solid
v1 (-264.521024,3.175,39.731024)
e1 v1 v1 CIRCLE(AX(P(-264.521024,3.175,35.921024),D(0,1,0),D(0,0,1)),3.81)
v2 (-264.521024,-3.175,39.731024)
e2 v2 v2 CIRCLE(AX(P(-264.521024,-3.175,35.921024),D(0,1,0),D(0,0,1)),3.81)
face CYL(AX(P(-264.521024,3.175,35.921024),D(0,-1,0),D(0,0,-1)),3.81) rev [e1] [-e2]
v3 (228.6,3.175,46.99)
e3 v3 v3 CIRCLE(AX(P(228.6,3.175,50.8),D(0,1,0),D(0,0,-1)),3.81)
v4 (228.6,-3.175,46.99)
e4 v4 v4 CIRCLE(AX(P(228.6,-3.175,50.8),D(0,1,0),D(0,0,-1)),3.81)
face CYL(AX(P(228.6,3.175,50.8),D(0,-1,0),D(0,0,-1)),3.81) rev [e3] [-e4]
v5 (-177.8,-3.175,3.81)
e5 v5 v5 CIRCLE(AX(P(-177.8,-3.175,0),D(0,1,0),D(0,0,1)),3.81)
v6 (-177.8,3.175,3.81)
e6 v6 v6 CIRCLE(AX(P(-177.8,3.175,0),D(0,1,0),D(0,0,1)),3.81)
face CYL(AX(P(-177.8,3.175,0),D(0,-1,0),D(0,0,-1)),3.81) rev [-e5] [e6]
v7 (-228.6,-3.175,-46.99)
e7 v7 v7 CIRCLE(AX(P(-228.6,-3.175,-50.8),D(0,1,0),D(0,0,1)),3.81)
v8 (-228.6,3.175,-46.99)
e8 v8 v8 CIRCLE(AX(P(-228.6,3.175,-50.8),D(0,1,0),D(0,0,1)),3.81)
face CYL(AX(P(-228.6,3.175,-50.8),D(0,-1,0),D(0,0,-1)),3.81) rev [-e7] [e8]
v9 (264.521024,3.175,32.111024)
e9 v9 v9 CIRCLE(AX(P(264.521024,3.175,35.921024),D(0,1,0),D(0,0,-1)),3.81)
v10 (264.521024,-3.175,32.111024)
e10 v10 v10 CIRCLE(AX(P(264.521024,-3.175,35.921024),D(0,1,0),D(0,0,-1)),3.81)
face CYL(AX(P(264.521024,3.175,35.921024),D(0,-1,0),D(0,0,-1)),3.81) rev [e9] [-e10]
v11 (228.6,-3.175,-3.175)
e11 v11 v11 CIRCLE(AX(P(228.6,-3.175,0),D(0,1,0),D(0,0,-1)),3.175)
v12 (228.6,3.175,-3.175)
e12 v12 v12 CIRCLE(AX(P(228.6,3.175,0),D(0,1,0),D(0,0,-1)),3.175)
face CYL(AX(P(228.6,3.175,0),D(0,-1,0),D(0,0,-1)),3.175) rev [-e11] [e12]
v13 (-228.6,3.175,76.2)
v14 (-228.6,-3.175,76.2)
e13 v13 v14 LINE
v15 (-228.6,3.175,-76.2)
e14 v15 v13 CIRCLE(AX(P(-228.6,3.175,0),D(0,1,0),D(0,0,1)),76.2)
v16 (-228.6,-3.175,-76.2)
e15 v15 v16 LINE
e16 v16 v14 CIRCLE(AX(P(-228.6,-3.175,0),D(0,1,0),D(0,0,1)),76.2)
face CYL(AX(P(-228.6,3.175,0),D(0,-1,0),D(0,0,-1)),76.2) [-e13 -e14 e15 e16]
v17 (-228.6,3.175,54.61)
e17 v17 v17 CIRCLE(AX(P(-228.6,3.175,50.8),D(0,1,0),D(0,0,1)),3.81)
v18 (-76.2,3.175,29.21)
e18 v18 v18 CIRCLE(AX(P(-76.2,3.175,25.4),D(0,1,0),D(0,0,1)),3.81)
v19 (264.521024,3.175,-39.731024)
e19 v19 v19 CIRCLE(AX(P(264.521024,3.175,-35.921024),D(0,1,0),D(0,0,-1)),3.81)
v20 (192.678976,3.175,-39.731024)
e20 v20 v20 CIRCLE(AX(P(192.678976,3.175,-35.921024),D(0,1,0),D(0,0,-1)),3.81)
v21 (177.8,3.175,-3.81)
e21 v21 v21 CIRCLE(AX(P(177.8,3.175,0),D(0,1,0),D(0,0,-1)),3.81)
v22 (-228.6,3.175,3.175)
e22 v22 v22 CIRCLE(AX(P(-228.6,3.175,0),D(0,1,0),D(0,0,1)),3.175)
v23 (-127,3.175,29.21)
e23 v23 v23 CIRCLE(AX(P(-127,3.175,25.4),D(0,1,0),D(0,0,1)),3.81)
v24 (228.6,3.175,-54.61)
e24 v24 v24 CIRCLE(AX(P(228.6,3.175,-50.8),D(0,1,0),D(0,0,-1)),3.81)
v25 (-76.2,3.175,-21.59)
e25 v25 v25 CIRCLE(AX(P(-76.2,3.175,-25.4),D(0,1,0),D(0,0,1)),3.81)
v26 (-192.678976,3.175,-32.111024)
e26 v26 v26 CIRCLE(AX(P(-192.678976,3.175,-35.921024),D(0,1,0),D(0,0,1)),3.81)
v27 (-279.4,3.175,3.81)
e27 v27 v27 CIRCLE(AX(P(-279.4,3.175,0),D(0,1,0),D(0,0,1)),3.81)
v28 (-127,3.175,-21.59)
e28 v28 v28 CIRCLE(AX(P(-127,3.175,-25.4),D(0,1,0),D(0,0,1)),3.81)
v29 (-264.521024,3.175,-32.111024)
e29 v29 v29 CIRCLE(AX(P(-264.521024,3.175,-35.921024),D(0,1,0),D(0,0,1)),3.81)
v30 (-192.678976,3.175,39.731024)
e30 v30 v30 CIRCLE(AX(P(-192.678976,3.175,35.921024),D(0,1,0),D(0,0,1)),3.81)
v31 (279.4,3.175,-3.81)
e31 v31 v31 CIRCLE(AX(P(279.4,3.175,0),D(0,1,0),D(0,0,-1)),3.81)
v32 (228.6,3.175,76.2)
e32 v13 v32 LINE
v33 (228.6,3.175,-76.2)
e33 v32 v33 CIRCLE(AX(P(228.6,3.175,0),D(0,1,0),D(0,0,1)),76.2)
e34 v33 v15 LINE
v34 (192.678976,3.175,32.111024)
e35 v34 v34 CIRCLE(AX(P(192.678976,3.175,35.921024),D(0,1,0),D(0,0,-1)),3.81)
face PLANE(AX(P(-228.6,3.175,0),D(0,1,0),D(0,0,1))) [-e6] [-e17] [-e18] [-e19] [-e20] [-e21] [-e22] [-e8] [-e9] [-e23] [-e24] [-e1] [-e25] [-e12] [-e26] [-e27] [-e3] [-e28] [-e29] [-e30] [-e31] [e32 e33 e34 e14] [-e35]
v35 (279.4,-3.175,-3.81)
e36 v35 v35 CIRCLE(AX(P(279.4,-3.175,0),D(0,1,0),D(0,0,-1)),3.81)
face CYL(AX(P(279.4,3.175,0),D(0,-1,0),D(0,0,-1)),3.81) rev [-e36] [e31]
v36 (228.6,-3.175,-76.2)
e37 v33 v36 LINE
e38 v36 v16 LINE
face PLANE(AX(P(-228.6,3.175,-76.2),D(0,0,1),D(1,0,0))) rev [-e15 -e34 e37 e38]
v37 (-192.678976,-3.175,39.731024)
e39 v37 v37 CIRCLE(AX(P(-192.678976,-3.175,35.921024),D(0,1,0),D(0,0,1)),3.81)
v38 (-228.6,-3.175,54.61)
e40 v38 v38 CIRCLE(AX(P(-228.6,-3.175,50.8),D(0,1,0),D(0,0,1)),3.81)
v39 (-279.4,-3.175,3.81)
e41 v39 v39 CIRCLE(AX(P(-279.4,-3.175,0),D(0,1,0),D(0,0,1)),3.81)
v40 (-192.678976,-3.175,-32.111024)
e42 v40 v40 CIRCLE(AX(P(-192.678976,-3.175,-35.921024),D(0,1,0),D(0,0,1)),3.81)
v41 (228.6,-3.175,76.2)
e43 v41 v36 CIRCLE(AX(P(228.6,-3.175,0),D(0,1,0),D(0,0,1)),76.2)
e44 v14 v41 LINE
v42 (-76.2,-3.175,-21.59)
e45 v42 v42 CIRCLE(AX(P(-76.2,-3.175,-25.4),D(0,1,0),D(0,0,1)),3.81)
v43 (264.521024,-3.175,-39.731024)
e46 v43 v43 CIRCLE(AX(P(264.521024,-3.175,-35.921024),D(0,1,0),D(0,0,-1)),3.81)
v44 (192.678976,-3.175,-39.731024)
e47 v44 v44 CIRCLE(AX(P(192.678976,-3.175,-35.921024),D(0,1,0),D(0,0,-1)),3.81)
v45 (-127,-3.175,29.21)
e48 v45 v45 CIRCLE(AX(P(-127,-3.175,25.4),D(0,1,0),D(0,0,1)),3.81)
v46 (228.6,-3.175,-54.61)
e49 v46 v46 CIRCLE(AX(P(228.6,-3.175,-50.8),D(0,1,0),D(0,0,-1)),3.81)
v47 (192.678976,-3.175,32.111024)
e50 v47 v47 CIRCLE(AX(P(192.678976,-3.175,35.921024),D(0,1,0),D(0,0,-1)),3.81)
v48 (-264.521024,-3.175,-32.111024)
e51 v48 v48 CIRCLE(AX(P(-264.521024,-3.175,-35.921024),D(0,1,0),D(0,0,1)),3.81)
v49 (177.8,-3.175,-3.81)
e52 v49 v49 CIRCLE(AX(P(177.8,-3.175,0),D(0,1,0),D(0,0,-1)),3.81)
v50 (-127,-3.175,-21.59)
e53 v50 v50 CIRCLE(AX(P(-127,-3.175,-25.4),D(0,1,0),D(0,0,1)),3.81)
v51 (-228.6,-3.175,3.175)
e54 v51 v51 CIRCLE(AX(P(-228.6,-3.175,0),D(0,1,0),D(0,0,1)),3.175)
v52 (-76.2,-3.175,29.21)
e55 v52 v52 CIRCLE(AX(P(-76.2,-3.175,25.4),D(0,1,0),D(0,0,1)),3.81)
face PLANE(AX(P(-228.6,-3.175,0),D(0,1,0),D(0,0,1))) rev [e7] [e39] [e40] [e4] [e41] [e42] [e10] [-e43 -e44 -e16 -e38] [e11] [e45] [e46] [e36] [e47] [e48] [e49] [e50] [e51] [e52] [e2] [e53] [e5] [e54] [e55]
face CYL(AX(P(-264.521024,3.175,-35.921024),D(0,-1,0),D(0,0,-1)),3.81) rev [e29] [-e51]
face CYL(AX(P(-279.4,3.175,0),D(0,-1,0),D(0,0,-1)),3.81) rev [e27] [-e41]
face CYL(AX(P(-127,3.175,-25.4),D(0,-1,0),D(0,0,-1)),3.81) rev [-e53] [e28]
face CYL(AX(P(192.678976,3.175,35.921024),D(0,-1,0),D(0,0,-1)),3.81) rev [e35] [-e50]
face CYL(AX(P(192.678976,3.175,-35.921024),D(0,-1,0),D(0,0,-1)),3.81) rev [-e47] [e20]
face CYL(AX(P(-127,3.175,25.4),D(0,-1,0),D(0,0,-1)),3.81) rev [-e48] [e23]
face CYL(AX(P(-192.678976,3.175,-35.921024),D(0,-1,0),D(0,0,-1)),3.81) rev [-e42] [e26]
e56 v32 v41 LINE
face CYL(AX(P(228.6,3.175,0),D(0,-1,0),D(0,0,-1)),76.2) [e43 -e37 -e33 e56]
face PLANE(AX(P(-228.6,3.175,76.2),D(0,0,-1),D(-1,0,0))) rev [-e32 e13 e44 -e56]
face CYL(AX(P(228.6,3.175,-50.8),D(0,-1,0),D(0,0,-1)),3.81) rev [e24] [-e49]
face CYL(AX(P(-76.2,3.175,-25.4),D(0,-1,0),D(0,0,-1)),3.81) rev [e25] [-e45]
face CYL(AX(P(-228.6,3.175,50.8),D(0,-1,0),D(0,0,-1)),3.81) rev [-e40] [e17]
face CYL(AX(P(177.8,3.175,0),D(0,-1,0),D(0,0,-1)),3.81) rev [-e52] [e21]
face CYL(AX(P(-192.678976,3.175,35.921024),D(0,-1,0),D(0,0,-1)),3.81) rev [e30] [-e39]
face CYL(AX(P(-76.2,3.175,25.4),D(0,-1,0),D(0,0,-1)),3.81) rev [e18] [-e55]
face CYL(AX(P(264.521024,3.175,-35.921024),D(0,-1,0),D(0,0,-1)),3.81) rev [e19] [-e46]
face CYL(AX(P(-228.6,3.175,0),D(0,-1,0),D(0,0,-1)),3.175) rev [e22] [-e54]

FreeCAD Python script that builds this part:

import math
import FreeCAD as App
import Part
import Sketcher
from FreeCAD import Vector
Q = App.Units.Quantity

doc = App.newDocument("Part")
params = doc.addObject("Spreadsheet::Sheet", "Params")
for row, (alias, value) in enumerate([
    ("sketch1_radius", "3 in"),
    ("sketch1_diameter", "0.3 in"),
    ("sketch1_diameter2", "0.25 in"),
    ("sketch1_width", "18 in"),
    ("pad1_length", "0.25 in"),
], start=1):
    params.set(f"A{row}", alias)
    params.set(f"B{row}", "=" + value)
    params.setAlias(f"B{row}", alias)

body = doc.addObject("PartDesign::Body", "Body")

# Sketch on XZ plane
sketch1 = body.newObject("Sketcher::SketchObject", "Sketch")
sketch1.AttachmentSupport = (doc.getObject("XZ_Plane"), [""])
sketch1.MapMode = "FlatFace"
sketch1.addGeometry([
    Part.LineSegment(Vector(228.6, -76.2, 0), Vector(-228.6, -76.2, 0)),  # 0
    Part.ArcOfCircle(Part.Circle(Vector(-228.6, 0, 0), Vector(0, 0, 1), 76.2), math.radians(90), math.radians(270)),  # 1
    Part.LineSegment(Vector(-228.6, 76.2, 0), Vector(228.6, 76.2, 0)),  # 2
    Part.ArcOfCircle(Part.Circle(Vector(228.6, 0, 0), Vector(0, 0, 1), 76.2), math.radians(-90), math.radians(90)),  # 3
    Part.Circle(Vector(228.6, 50.8, 0), Vector(0, 0, 1), 3.8),  # 4
    Part.Circle(Vector(264.5, 35.9, 0), Vector(0, 0, 1), 3.8),  # 5
    Part.Circle(Vector(192.7, 35.9, 0), Vector(0, 0, 1), 3.8),  # 6
    Part.Circle(Vector(-228.6, 50.8, 0), Vector(0, 0, 1), 3.8),  # 7
    Part.Circle(Vector(-192.7, 35.9, 0), Vector(0, 0, 1), 3.8),  # 8
    Part.Circle(Vector(-264.5, 35.9, 0), Vector(0, 0, 1), 3.8),  # 9
    Part.Circle(Vector(-76.2, 25.4, 0), Vector(0, 0, 1), 3.8),  # 10
    Part.Circle(Vector(-127, 25.4, 0), Vector(0, 0, 1), 3.8),  # 11
    Part.Circle(Vector(279.4, 0, 0), Vector(0, 0, 1), 3.8),  # 12
    Part.Circle(Vector(228.6, 0, 0), Vector(0, 0, 1), 3.2),  # 13
    Part.Circle(Vector(177.8, 0, 0), Vector(0, 0, 1), 3.8),  # 14
    Part.Circle(Vector(264.5, -35.9, 0), Vector(0, 0, 1), 3.8),  # 15
    Part.Circle(Vector(192.7, -35.9, 0), Vector(0, 0, 1), 3.8),  # 16
    Part.Circle(Vector(228.6, -50.8, 0), Vector(0, 0, 1), 3.8),  # 17
    Part.Circle(Vector(-76.2, -25.4, 0), Vector(0, 0, 1), 3.8),  # 18
    Part.Circle(Vector(-127, -25.4, 0), Vector(0, 0, 1), 3.8),  # 19
    Part.Circle(Vector(-177.8, 0, 0), Vector(0, 0, 1), 3.8),  # 20
    Part.Circle(Vector(-228.6, 0, 0), Vector(0, 0, 1), 3.2),  # 21
    Part.Circle(Vector(-279.4, 0, 0), Vector(0, 0, 1), 3.8),  # 22
    Part.Circle(Vector(-192.7, -35.9, 0), Vector(0, 0, 1), 3.8),  # 23
    Part.Circle(Vector(-264.5, -35.9, 0), Vector(0, 0, 1), 3.8),  # 24
    Part.Circle(Vector(-228.6, -50.8, 0), Vector(0, 0, 1), 3.8),  # 25
], False)
sketch1.addConstraint([
    Sketcher.Constraint("Tangent", 0, 2, 1, 2),
    Sketcher.Constraint("Tangent", 1, 1, 2, 1),
    Sketcher.Constraint("Tangent", 2, 2, 3, 2),
    Sketcher.Constraint("Tangent", 3, 1, 0, 1),
    Sketcher.Constraint("Horizontal", 0),
    Sketcher.Constraint("Horizontal", 2),
    Sketcher.Constraint("Coincident", 13, 3, 3, 3),
    Sketcher.Constraint("Coincident", 21, 3, 1, 3),
    Sketcher.Constraint("Equal", 4, 5),
    Sketcher.Constraint("Equal", 5, 6),
    Sketcher.Constraint("Equal", 6, 7),
    Sketcher.Constraint("Equal", 7, 8),
    Sketcher.Constraint("Equal", 8, 9),
    Sketcher.Constraint("Equal", 9, 10),
    Sketcher.Constraint("Equal", 10, 11),
    Sketcher.Constraint("Equal", 11, 12),
    Sketcher.Constraint("Equal", 12, 14),
    Sketcher.Constraint("Equal", 14, 15),
    Sketcher.Constraint("Equal", 15, 16),
    Sketcher.Constraint("Equal", 16, 17),
    Sketcher.Constraint("Equal", 17, 18),
    Sketcher.Constraint("Equal", 18, 19),
    Sketcher.Constraint("Equal", 19, 20),
    Sketcher.Constraint("Equal", 13, 21),
    Sketcher.Constraint("Equal", 20, 22),
    Sketcher.Constraint("Equal", 22, 23),
    Sketcher.Constraint("Equal", 23, 24),
    Sketcher.Constraint("Equal", 24, 25),
    Sketcher.Constraint("Symmetric", 1, 3, 3, 3, -1, 1),
    Sketcher.Constraint("Symmetric", 9, 3, 15, 3, -1, 1),
    Sketcher.Constraint("Symmetric", 8, 3, 16, 3, -1, 1),
    Sketcher.Constraint("Symmetric", 7, 3, 17, 3, -1, 1),
    Sketcher.Constraint("Symmetric", 14, 3, 20, 3, -1, 1),
    Sketcher.Constraint("Symmetric", 12, 3, 22, 3, -1, 1),
    Sketcher.Constraint("Symmetric", 6, 3, 23, 3, -1, 1),
    Sketcher.Constraint("Symmetric", 5, 3, 24, 3, -1, 1),
    Sketcher.Constraint("Symmetric", 4, 3, 25, 3, -1, 1),
    Sketcher.Constraint("Symmetric", 4, 3, 7, 3, -2),
    Sketcher.Constraint("Symmetric", 6, 3, 8, 3, -2),
    Sketcher.Constraint("Symmetric", 5, 3, 9, 3, -2),
    Sketcher.Constraint("Symmetric", 10, 3, 18, 3, -1),
    Sketcher.Constraint("Symmetric", 11, 3, 19, 3, -1),
    Sketcher.Constraint("PointOnObject", 12, 3, -1),
    Sketcher.Constraint("PointOnObject", 14, 3, -1),
    Sketcher.Constraint("Horizontal", 5, 3, 6, 3),
    Sketcher.Constraint("Horizontal", 10, 3, 11, 3),
    Sketcher.Constraint("Vertical", 3, 3, 4, 3),
    Sketcher.Constraint("Radius", 1, Q("3 in")),
    Sketcher.Constraint("Diameter", 4, Q("0.3 in")),
    Sketcher.Constraint("Diameter", 13, Q("0.25 in")),
    Sketcher.Constraint("DistanceX", 0, 2, 0, 1, Q("18 in")),
    Sketcher.Constraint("DistanceY", -1, 1, 4, 3, Q("2 in")),
    Sketcher.Constraint("DistanceX", 10, 3, -1, 1, Q("3 in")),
    Sketcher.Constraint("DistanceY", -1, 1, 10, 3, Q("1 in")),
    Sketcher.Constraint("DistanceX", 11, 3, -1, 1, Q("5 in")),
    Sketcher.Constraint("DistanceX", -1, 1, 12, 3, Q("11 in")),
    Sketcher.Constraint("DistanceX", -1, 1, 14, 3, Q("7 in")),
    Sketcher.Constraint("DistanceX", 9, 3, 6, 3, Q("18 in")),
    Sketcher.Constraint("DistanceX", 6, 3, 5, 3, 71.842049),
    Sketcher.Constraint("DistanceY", 15, 3, 5, 3, 71.842049),
])
sketch1.setExpression("Constraints[47]", "Params.sketch1_radius")
sketch1.setExpression("Constraints[48]", "Params.sketch1_diameter")
sketch1.setExpression("Constraints[49]", "Params.sketch1_diameter2")
sketch1.setExpression("Constraints[50]", "Params.sketch1_width")
pad1 = body.newObject("PartDesign::Pad", "Pad")
pad1.Profile = sketch1
pad1.setExpression("Length", "Params.pad1_length")
pad1.Midplane = True

doc.recompute()
